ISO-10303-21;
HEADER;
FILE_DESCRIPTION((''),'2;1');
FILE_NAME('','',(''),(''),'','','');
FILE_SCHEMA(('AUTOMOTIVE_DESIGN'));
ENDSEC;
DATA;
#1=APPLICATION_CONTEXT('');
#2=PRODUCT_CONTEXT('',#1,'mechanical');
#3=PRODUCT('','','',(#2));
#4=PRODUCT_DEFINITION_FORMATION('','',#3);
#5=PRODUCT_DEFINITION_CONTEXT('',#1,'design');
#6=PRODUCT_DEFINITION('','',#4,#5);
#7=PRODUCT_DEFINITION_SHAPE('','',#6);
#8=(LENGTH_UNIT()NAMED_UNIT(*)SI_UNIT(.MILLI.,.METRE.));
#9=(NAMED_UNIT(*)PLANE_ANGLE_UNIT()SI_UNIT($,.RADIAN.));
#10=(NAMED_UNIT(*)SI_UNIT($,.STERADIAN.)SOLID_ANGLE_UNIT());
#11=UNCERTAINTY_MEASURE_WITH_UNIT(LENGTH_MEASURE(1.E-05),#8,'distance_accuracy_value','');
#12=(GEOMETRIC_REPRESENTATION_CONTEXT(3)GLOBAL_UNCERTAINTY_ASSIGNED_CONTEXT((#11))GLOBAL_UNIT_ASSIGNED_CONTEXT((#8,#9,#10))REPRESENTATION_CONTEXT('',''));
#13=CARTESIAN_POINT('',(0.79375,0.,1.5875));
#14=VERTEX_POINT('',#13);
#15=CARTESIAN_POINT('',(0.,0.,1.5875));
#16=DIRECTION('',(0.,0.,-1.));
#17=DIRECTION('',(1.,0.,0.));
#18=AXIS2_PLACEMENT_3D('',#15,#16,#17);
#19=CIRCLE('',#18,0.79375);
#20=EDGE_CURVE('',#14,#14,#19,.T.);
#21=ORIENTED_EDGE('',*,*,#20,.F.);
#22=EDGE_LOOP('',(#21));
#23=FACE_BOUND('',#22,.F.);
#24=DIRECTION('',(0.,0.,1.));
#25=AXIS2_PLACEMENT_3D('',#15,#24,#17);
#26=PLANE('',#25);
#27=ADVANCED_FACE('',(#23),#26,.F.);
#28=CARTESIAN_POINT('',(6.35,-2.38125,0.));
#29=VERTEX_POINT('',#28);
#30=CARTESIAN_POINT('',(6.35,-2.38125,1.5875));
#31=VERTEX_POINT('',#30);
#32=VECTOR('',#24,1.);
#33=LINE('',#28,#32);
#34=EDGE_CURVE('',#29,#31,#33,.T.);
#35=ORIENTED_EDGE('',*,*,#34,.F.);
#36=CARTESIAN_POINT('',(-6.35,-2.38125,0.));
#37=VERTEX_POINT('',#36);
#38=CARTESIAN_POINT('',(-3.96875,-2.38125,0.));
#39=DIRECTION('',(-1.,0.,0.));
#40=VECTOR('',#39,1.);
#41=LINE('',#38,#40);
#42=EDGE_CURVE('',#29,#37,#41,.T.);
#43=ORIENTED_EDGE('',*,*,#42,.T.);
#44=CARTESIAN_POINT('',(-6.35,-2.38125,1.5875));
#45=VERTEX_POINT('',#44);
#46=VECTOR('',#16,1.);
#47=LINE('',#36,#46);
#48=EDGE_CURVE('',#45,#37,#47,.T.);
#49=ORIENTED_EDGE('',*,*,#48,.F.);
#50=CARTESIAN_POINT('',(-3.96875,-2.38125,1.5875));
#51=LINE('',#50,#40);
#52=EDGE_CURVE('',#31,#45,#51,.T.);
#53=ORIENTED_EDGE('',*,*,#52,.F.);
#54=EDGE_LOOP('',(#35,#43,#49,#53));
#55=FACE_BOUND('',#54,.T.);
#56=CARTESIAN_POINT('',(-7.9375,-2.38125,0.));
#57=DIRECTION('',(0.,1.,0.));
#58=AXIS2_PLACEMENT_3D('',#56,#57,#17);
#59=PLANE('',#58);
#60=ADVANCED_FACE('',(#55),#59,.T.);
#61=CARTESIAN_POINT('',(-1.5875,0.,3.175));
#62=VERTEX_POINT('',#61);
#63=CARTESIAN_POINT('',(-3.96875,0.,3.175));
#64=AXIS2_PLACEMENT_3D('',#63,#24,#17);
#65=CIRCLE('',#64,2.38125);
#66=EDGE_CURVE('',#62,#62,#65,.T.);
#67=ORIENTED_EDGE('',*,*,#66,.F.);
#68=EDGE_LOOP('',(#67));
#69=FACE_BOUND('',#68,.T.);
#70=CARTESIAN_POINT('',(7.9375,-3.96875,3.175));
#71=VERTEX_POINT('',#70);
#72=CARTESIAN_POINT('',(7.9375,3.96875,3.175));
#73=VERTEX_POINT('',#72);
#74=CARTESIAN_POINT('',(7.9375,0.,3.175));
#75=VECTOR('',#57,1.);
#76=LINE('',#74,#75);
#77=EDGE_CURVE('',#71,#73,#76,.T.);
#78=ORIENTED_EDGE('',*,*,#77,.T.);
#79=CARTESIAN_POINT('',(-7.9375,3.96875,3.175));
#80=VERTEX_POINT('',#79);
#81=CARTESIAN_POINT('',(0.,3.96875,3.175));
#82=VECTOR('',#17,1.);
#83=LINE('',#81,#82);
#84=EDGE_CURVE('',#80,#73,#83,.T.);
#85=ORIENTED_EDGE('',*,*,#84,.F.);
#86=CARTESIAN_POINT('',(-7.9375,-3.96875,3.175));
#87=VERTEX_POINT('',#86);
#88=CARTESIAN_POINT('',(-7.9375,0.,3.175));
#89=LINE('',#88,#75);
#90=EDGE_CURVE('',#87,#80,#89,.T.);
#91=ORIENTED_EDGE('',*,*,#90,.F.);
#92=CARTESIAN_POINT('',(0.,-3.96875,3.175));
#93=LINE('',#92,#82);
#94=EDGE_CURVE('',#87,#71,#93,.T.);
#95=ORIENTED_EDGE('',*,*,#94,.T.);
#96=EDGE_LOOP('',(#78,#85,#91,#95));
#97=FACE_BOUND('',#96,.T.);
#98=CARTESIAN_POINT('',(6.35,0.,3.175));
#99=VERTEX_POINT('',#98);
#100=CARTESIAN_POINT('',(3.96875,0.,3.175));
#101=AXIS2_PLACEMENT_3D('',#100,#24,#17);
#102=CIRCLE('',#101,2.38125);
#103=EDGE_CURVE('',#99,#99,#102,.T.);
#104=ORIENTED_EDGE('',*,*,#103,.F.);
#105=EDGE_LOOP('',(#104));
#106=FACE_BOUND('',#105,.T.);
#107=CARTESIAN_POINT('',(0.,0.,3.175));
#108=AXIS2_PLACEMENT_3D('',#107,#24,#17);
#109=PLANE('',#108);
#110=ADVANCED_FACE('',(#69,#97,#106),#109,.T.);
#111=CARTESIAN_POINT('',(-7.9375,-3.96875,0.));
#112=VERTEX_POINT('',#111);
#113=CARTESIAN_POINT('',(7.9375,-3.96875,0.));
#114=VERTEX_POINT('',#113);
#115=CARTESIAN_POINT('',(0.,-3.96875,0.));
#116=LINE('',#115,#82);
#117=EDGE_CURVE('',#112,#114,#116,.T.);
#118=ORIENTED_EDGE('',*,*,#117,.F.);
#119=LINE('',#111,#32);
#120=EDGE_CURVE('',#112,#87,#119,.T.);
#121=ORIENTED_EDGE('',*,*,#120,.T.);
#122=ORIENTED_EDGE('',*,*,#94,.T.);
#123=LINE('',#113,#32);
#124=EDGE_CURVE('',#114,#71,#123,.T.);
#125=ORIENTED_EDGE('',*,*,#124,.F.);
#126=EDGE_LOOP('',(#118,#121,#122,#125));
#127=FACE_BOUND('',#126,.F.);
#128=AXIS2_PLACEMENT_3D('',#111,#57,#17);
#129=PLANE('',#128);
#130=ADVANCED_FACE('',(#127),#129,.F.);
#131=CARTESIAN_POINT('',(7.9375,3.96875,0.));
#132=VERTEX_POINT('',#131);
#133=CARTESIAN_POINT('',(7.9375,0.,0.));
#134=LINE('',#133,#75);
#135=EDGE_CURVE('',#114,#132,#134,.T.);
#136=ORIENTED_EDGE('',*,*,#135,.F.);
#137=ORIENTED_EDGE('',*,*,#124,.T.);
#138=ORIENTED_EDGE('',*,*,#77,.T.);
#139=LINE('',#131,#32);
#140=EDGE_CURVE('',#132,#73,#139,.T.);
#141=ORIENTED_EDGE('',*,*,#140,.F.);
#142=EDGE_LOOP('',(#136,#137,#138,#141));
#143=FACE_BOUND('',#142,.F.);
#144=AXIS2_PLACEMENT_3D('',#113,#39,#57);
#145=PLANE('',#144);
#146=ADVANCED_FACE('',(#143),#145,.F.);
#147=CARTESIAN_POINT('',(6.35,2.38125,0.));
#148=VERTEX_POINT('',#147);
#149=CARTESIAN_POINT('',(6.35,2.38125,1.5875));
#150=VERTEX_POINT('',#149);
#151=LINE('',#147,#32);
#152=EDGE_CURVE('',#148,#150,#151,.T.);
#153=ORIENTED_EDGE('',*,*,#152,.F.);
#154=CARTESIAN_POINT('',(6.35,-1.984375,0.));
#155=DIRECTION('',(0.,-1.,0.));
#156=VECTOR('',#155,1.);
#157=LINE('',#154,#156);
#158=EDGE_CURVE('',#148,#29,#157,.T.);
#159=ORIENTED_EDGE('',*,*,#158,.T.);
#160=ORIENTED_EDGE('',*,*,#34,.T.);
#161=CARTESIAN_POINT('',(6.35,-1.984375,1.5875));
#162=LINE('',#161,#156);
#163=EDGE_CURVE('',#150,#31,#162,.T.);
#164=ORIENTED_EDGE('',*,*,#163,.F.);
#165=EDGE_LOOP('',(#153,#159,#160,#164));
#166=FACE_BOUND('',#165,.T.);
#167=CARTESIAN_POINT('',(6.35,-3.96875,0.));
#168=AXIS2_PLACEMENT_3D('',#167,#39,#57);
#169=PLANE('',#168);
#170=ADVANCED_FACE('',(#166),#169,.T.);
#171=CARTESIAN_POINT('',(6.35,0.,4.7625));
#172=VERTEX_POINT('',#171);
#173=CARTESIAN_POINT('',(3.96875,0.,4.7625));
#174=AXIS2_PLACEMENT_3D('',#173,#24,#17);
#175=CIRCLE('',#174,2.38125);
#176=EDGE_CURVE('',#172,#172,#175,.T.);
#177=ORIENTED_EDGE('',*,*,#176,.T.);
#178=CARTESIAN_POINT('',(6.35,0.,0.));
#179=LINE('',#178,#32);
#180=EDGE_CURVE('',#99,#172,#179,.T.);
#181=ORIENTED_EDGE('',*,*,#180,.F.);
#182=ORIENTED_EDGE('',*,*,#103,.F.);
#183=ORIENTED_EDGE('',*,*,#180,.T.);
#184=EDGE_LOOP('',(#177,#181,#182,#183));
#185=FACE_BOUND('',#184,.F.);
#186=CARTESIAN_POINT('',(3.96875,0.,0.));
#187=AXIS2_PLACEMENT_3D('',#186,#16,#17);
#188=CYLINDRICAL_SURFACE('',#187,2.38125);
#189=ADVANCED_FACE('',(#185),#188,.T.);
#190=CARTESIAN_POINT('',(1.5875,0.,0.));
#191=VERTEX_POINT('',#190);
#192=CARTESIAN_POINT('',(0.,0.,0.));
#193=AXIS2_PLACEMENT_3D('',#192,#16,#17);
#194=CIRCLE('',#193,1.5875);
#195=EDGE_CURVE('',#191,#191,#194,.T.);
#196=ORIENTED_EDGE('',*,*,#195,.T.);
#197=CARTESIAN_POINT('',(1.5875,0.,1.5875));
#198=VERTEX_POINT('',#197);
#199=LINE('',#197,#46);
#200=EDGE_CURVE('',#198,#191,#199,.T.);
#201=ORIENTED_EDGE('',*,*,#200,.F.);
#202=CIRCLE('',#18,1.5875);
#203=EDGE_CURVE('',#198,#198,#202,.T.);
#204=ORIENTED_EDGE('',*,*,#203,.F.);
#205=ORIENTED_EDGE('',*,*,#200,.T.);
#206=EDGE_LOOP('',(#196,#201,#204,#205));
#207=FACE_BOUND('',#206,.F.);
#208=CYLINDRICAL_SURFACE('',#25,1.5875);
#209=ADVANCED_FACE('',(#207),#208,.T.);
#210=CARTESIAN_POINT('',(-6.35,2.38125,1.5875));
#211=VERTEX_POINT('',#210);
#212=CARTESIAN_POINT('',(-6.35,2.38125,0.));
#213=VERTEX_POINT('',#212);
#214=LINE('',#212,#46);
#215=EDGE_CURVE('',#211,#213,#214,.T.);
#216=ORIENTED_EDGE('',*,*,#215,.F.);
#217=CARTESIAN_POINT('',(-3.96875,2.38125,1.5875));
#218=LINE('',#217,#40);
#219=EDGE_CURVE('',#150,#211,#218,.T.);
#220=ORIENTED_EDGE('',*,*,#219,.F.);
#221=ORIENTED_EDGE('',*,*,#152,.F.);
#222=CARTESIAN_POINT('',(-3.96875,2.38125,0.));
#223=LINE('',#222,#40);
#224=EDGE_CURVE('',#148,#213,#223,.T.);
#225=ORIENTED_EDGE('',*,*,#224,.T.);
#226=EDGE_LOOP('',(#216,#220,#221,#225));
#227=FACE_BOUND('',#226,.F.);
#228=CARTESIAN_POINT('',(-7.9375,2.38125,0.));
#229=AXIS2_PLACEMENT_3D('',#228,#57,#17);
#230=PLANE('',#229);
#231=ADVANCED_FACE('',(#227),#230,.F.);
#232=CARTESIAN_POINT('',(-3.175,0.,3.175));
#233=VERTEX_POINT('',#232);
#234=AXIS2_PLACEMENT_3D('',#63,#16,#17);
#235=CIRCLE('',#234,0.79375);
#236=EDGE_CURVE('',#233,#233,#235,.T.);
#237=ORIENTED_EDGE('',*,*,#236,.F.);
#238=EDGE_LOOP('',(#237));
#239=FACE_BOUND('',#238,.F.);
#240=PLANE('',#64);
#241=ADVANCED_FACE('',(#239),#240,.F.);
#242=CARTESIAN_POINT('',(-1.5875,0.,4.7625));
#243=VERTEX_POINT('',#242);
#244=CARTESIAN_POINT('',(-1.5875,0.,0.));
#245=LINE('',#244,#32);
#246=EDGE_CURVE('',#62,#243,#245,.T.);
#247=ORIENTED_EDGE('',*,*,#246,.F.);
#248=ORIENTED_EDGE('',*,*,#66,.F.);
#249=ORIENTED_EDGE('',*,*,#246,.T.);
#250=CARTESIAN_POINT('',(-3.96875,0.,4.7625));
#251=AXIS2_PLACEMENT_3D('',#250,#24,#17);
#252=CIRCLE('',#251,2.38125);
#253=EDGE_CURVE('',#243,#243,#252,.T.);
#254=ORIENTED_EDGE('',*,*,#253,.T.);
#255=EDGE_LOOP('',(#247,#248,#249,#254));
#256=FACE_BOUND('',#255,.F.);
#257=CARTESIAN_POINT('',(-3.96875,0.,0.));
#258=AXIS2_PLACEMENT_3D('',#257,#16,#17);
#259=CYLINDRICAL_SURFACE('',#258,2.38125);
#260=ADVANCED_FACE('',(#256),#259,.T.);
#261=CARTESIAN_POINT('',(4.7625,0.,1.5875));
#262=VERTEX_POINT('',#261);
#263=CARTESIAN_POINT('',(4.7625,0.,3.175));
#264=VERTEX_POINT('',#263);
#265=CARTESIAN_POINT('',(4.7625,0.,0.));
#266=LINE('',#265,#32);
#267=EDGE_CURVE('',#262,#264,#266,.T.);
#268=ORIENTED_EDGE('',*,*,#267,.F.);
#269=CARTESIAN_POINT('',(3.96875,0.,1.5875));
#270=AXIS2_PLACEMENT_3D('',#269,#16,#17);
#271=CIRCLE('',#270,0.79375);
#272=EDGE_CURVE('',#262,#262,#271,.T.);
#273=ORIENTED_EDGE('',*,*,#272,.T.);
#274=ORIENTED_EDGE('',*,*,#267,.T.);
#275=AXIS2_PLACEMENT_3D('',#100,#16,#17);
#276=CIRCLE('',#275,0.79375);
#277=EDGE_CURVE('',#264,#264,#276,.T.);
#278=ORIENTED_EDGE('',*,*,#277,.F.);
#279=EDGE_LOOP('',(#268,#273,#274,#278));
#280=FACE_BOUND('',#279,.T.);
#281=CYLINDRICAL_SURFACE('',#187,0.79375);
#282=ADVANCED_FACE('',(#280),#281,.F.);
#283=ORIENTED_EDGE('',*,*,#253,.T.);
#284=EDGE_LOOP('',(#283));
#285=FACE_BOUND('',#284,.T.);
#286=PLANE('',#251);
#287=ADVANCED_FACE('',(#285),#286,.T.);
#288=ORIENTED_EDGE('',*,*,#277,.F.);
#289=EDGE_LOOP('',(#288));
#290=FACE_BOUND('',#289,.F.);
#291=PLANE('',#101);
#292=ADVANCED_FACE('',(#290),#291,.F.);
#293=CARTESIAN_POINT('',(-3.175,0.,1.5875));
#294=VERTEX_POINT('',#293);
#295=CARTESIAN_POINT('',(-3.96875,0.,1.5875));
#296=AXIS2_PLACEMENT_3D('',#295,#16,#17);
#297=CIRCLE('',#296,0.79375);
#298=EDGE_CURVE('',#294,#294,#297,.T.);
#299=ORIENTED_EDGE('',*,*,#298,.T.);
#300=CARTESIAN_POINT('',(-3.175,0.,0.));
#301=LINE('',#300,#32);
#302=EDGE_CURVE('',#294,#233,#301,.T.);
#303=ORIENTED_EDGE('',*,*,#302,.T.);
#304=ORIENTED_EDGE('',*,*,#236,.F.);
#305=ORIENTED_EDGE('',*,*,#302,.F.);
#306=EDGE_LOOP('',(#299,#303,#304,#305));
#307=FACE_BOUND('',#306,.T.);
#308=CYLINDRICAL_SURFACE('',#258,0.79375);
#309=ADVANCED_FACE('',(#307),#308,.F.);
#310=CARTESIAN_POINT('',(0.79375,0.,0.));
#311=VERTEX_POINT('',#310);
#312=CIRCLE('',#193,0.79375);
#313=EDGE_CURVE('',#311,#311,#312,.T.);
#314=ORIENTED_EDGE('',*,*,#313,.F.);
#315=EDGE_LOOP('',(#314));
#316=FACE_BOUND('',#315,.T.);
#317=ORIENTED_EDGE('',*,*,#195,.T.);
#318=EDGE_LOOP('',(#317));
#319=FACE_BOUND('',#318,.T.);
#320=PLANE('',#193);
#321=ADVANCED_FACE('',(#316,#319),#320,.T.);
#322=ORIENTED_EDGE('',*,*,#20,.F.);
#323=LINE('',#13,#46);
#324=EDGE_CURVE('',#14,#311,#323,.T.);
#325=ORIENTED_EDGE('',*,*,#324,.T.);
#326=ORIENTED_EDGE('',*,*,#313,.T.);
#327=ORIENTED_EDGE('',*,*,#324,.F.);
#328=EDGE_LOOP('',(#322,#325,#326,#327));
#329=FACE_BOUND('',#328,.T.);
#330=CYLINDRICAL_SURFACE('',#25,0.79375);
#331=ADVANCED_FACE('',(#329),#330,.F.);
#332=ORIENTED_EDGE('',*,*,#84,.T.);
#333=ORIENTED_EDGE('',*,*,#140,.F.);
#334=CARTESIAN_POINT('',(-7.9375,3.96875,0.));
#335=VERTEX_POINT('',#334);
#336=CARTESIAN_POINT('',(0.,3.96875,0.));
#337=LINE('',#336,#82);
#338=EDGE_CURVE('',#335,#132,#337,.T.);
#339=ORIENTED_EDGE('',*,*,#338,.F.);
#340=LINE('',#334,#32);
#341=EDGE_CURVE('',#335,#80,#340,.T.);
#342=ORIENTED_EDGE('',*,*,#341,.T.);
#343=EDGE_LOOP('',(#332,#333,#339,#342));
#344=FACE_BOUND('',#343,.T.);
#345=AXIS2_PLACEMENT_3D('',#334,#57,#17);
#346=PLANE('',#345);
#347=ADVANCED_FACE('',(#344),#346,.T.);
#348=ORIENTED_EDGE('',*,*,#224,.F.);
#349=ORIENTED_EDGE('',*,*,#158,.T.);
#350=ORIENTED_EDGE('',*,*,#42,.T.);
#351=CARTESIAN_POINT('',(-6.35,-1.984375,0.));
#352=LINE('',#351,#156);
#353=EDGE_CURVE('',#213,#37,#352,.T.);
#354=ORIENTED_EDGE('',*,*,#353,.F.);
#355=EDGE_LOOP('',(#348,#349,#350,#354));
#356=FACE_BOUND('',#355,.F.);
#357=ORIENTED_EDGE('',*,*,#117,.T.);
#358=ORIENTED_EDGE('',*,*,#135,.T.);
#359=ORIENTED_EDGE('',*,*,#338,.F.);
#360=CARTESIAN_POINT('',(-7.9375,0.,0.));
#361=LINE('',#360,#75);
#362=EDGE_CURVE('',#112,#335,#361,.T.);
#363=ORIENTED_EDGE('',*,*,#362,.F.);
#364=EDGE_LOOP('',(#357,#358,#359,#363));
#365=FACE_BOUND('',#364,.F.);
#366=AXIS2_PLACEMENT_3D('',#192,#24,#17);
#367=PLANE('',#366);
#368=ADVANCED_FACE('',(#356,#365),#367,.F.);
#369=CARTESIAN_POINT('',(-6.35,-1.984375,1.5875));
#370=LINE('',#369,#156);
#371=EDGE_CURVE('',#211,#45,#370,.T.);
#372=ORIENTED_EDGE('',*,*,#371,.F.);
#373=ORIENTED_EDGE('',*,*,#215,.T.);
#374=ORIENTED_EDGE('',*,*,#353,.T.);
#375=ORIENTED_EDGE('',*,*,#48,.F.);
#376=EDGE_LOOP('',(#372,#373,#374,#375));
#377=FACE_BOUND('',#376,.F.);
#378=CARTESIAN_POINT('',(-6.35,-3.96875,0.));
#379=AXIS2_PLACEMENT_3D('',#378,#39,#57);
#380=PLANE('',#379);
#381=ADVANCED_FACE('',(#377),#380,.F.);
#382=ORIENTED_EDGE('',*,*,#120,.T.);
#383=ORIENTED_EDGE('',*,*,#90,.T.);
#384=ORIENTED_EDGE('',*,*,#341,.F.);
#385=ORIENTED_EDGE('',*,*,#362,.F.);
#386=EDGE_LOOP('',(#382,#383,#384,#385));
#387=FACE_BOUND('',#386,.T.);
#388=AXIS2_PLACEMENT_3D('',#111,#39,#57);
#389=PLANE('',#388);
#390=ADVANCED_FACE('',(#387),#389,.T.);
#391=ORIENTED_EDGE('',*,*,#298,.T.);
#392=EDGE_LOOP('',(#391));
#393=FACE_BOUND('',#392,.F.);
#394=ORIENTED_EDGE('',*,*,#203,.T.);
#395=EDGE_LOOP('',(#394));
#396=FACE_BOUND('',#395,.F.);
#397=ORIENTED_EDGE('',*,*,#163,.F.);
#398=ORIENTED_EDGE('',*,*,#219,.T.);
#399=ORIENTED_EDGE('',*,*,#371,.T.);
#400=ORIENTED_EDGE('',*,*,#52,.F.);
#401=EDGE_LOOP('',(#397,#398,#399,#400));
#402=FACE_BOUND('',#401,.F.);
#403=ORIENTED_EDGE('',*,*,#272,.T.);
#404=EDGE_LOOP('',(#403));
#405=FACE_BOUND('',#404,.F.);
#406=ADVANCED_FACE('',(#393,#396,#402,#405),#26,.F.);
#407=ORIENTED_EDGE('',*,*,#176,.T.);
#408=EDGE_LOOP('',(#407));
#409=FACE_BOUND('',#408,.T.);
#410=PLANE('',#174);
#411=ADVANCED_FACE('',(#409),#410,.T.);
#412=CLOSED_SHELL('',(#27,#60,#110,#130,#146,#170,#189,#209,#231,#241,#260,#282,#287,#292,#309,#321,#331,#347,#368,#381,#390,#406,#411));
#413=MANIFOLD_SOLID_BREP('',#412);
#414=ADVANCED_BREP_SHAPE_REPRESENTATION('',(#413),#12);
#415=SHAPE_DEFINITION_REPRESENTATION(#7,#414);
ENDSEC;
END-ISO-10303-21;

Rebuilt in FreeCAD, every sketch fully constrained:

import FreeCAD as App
import Part
import Sketcher

V = App.Vector
Q = App.Units.Quantity


def faces_at(feature, points):
    """Names of the faces that lie closest to the given points."""
    faces = feature.Shape.Faces
    near = lambda p: min(range(len(faces)), key=lambda i: faces[i].distToShape(Part.Vertex(*p))[0])
    return sorted({f"Face{near(p) + 1}" for p in points})


def add_polygon(sketch, points):
    """Adds a closed chain of lines whose ends are joined by coincident constraints."""
    first, n = sketch.GeometryCount, len(points)
    for a, b in zip(points, points[1:] + points[:1]):
        sketch.addGeometry(Part.LineSegment(App.Vector(*a, 0), App.Vector(*b, 0)), False)
    for i in range(n):
        sketch.addConstraint(Sketcher.Constraint("Coincident", first + i, 2, first + (i + 1) % n, 1))

doc = App.newDocument("Part")
body = doc.addObject("PartDesign::Body", "Body")

sketch1 = body.newObject("Sketcher::SketchObject", "Sketch")
sketch1.AttachmentSupport = (doc.getObject("XY_Plane"), [""])
sketch1.MapMode = "FlatFace"
add_polygon(sketch1, [(-7.9375, 3.96875), (-7.9375, -3.96875), (7.9375, -3.96875), (7.9375, 3.96875)])
sketch1.addGeometry(Part.Circle(V(-3.96875, 0, 0), V(0, 0, 1), 2.38125), False)
sketch1.addGeometry(Part.Circle(V(3.96875, 0, 0), V(0, 0, 1), 2.38125), False)
sketch1.addConstraint(Sketcher.Constraint("Vertical", 0))
sketch1.addConstraint(Sketcher.Constraint("Horizontal", 1))
sketch1.addConstraint(Sketcher.Constraint("Vertical", 2))
sketch1.addConstraint(Sketcher.Constraint("Horizontal", 3))
sketch1.addConstraint(Sketcher.Constraint("Equal", 4, 5))
sketch1.addConstraint(Sketcher.Constraint("Symmetric", 4, 3, 5, 3, -1, 1))
sketch1.addConstraint(Sketcher.Constraint("Symmetric", 0, 2, 2, 2, -1, 1))
sketch1.addConstraint(Sketcher.Constraint("PointOnObject", 4, 3, -1))
sketch1.addConstraint(Sketcher.Constraint("Diameter", 4, Q("0.1875 in")))
sketch1.addConstraint(Sketcher.Constraint("DistanceX", 1, 1, 1, 2, Q("0.625 in")))
sketch1.addConstraint(Sketcher.Constraint("DistanceY", 0, 2, 0, 1, Q("0.3125 in")))
sketch1.addConstraint(Sketcher.Constraint("DistanceX", 4, 3, -1, 1, Q("0.15625 in")))
pad1 = body.newObject("PartDesign::Pad", "Pad")
pad1.Profile = sketch1
pad1.Length = Q("0.125 in")

sketch2 = body.newObject("Sketcher::SketchObject", "Sketch001")
sketch2.AttachmentSupport = (doc.getObject("XY_Plane"), [""])
sketch2.MapMode = "FlatFace"
sketch2.addGeometry(Part.Circle(V(3.96875, 0, 0), V(0, 0, 1), 2.38125), False)
sketch2.addGeometry(Part.Circle(V(-3.96875, 0, 0), V(0, 0, 1), 2.38125), False)
sketch2.addConstraint(Sketcher.Constraint("Equal", 0, 1))
sketch2.addConstraint(Sketcher.Constraint("Symmetric", 0, 3, 1, 3, -1, 1))
sketch2.addConstraint(Sketcher.Constraint("PointOnObject", 0, 3, -1))
sketch2.addConstraint(Sketcher.Constraint("Diameter", 0, Q("0.1875 in")))
sketch2.addConstraint(Sketcher.Constraint("DistanceX", -1, 1, 0, 3, Q("0.15625 in")))
pad2 = body.newObject("PartDesign::Pad", "Pad001")
pad2.Profile = sketch2
pad2.Length = Q("0.1875 in")
doc.recompute()

thickness = body.newObject("PartDesign::Thickness", "Thickness")
thickness.Base = (pad2, faces_at(pad2, [(0, 0, 0)]))
thickness.Value = Q("0.0625 in")
thickness.Reversed = True
thickness.Join = "Intersection"

sketch3 = body.newObject("Sketcher::SketchObject", "Sketch002")
sketch3.AttachmentSupport = (doc.getObject("XY_Plane"), [""])
sketch3.MapMode = "FlatFace"
sketch3.AttachmentOffset = App.Placement(V(0, 0, 0.0625 * 25.4), App.Rotation())
sketch3.addGeometry(Part.Circle(V(0, 0, 0), V(0, 0, 1), 1.5875), False)
sketch3.addGeometry(Part.Circle(V(0, 0, 0), V(0, 0, 1), 0.79375), False)
sketch3.addConstraint(Sketcher.Constraint("Coincident", 0, 3, -1, 1))
sketch3.addConstraint(Sketcher.Constraint("Coincident", 1, 3, -1, 1))
sketch3.addConstraint(Sketcher.Constraint("Diameter", 0, Q("0.125 in")))
sketch3.addConstraint(Sketcher.Constraint("Diameter", 1, Q("0.0625 in")))
pad3 = body.newObject("PartDesign::Pad", "Pad002")
pad3.Profile = sketch3
pad3.Length = Q("0.0625 in")
pad3.Reversed = True

doc.recompute()
